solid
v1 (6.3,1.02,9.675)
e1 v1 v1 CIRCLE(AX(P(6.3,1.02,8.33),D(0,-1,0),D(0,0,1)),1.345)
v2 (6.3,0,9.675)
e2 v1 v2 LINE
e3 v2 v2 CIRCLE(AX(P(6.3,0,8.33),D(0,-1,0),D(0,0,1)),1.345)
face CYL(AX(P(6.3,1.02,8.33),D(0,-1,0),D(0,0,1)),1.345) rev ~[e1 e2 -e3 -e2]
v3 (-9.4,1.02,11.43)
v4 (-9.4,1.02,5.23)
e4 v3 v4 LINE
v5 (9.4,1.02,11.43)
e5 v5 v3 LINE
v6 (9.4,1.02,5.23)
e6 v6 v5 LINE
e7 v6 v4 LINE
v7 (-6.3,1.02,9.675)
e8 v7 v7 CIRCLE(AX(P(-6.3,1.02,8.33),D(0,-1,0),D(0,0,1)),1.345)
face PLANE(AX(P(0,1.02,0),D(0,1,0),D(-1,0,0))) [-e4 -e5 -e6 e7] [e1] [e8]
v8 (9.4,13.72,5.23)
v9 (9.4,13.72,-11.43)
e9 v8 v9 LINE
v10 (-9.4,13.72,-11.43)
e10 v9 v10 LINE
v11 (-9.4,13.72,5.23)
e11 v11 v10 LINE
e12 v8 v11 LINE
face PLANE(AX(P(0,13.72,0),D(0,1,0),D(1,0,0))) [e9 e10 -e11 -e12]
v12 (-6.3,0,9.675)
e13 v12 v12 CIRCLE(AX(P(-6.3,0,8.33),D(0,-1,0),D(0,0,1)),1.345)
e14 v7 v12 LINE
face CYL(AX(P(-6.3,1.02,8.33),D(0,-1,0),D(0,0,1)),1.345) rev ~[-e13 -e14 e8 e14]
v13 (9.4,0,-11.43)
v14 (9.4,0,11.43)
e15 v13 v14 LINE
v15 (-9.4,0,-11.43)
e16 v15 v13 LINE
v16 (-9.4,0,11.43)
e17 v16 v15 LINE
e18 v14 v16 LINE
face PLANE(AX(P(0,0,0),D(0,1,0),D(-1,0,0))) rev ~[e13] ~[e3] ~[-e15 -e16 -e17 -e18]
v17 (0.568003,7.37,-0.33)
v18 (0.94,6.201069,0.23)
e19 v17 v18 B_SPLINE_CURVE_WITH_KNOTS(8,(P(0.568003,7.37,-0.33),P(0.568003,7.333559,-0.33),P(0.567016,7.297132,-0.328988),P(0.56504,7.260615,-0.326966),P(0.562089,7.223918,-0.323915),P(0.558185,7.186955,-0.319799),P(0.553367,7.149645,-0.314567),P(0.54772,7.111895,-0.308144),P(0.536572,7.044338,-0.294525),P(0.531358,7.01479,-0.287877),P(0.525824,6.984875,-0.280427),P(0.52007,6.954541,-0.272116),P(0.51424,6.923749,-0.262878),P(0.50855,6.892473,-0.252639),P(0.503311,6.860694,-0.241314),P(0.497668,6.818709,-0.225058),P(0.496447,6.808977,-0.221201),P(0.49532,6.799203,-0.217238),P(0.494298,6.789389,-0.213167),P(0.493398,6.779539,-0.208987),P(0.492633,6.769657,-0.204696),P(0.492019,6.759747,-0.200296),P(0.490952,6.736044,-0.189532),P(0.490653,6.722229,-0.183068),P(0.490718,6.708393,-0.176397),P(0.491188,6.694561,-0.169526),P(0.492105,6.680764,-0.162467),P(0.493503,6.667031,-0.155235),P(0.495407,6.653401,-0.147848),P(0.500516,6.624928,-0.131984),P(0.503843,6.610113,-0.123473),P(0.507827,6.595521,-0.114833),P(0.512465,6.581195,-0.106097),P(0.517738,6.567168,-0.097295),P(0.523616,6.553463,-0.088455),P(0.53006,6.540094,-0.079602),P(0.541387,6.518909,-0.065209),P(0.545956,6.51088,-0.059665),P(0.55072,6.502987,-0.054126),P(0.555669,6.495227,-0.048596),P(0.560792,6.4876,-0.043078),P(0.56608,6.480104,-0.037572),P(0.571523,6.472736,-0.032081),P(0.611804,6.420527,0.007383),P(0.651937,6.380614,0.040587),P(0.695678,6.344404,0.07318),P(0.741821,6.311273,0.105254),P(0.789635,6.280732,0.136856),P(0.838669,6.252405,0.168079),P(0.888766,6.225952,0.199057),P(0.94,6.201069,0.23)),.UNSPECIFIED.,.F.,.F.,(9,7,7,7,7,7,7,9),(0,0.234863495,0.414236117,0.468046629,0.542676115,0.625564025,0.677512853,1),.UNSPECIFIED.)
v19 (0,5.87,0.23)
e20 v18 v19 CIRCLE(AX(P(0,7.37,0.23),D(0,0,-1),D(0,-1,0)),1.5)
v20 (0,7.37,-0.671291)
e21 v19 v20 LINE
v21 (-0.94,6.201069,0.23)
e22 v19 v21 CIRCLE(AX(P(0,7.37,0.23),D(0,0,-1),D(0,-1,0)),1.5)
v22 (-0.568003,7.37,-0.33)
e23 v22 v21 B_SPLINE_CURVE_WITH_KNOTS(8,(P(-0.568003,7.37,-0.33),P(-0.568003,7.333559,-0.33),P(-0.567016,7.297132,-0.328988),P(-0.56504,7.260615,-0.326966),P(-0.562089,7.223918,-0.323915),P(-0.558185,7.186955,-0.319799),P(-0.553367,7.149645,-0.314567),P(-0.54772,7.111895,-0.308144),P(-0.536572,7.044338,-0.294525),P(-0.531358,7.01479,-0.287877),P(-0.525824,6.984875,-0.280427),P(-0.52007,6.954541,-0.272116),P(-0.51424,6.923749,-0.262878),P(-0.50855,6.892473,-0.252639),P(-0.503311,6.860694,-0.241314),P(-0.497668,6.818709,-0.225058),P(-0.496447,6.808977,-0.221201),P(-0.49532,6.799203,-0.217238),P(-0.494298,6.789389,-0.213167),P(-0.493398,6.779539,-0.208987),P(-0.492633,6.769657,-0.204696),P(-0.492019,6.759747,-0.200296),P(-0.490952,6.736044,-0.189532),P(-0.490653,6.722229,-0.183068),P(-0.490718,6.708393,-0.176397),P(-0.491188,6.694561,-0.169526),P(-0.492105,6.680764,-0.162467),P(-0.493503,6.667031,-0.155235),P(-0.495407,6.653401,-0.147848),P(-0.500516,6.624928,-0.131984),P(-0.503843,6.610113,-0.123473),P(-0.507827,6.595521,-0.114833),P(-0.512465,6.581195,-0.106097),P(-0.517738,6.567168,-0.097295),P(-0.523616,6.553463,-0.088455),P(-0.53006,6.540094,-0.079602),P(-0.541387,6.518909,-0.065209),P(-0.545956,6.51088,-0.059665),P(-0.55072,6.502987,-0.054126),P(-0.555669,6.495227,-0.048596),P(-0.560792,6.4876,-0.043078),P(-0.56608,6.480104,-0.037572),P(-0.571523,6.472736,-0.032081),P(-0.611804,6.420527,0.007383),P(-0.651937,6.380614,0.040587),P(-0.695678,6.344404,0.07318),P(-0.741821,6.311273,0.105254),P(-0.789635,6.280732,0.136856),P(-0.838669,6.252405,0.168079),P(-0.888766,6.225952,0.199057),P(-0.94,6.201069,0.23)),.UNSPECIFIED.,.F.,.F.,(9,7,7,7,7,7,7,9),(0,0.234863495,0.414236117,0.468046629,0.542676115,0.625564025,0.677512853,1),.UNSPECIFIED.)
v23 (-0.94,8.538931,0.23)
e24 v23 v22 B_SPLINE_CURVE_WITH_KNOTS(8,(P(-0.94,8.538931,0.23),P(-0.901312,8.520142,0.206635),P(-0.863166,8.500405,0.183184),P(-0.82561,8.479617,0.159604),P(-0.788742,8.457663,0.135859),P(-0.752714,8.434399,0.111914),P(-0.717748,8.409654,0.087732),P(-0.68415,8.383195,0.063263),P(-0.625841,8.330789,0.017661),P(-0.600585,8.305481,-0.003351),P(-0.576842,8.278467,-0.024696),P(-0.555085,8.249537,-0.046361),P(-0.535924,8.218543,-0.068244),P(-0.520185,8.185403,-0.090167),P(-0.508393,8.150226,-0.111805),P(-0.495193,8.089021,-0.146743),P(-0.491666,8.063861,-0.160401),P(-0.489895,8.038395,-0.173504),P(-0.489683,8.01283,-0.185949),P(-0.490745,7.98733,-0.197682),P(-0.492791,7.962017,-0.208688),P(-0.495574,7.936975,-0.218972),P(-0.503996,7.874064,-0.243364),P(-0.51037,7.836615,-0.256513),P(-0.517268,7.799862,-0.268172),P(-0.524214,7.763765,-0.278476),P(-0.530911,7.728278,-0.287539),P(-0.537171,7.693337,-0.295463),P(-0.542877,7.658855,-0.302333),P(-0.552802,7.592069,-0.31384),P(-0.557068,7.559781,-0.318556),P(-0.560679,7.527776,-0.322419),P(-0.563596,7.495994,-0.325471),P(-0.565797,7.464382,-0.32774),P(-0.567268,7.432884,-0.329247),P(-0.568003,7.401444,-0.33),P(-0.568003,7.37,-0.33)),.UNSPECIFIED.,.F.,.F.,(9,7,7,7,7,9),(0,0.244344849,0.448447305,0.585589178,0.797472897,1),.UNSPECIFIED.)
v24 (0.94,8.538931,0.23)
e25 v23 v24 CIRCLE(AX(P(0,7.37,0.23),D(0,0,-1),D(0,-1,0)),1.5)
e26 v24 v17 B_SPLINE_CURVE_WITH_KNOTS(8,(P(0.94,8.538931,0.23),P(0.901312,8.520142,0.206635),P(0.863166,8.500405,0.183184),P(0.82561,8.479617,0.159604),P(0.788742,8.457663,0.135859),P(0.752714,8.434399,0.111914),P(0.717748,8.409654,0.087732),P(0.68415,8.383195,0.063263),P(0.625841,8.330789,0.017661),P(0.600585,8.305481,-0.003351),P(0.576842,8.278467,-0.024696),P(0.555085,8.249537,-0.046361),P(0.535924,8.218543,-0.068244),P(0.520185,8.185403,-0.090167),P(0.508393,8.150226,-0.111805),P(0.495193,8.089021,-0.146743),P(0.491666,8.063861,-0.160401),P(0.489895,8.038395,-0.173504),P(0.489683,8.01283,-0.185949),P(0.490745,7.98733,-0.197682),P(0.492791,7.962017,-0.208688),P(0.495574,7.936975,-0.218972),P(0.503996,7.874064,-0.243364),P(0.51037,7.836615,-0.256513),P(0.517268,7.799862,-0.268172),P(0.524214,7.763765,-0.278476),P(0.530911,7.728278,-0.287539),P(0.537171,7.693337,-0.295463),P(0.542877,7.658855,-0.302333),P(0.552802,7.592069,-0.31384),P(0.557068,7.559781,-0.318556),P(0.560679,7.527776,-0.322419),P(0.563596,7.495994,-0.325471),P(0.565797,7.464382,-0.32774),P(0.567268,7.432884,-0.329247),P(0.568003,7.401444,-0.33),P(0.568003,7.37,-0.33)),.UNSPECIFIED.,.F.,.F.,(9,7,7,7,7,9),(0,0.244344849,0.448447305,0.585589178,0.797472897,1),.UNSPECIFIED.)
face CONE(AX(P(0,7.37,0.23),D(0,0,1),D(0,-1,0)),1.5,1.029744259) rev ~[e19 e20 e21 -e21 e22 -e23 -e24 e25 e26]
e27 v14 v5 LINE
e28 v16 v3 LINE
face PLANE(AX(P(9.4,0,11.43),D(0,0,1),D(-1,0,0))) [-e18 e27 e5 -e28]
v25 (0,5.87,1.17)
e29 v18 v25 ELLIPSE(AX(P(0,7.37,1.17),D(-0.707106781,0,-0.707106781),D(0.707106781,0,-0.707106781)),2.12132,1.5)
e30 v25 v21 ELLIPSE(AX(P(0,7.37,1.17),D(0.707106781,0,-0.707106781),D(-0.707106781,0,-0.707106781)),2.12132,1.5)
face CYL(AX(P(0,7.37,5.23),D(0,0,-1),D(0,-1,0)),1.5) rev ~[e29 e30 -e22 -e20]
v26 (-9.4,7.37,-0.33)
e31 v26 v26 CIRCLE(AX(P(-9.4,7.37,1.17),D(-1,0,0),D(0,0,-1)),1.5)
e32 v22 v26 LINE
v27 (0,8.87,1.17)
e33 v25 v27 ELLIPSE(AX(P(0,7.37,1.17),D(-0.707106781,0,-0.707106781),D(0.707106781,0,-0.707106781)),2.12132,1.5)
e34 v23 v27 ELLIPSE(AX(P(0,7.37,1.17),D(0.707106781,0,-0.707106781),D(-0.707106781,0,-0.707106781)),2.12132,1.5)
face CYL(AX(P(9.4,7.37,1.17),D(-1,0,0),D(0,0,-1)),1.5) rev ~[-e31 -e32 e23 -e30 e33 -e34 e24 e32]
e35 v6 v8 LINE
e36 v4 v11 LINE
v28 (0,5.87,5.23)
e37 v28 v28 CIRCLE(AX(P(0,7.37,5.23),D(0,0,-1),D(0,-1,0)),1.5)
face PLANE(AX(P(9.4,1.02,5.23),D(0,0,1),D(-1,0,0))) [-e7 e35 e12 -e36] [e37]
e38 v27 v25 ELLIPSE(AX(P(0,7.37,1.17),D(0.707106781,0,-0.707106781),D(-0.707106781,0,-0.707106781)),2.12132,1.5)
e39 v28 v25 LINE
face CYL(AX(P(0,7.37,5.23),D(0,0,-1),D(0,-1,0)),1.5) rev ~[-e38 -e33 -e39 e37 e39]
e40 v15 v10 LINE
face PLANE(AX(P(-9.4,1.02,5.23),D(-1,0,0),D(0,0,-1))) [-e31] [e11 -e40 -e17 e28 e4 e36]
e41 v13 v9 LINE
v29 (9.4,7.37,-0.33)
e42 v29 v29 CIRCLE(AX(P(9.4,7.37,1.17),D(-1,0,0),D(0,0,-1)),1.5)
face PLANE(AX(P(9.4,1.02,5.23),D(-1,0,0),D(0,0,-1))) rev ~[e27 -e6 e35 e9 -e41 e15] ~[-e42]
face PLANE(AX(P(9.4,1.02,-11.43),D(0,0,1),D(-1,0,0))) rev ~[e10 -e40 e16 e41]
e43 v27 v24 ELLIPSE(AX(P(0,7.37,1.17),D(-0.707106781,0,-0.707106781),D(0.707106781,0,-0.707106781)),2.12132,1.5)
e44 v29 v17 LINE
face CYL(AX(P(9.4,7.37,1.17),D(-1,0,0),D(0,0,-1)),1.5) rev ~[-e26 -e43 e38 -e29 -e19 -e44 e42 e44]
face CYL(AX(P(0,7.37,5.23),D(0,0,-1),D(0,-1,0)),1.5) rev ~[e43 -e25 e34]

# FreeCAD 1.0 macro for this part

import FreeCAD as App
import Part
import Sketcher
from FreeCAD import Vector

doc = App.newDocument("Part")
params = doc.addObject("Spreadsheet::Sheet", "Params")
for row, (alias, value) in enumerate([
    ("sketch1_width", "18.8 mm"),
    ("sketch1_height", "22.86 mm"),
    ("pad1_length", "1.02 mm"),
    ("sketch2_diameter", "2.69 mm"),
    ("hole_diameter", "2.69 mm"),
    ("sketch3_width", "18.8 mm"),
    ("sketch3_height", "16.66 mm"),
    ("pad2_length", "12.7 mm"),
    ("sketch4_diameter", "3 mm"),
    ("hole2_diameter", "3 mm"),
    ("hole2_depth", "5 mm"),
    ("sketch5_diameter", "3 mm"),
    ("hole3_diameter", "3 mm"),
], start=1):
    params.set(f"A{row}", alias)
    params.set(f"B{row}", "=" + value)
    params.setAlias(f"B{row}", alias)

body = doc.addObject("PartDesign::Body", "Body")

sketch1 = doc.addObject("Sketcher::SketchObject", "Sketch")
body.addObject(sketch1)
sketch1.AttachmentSupport = (doc.XZ_Plane, [""])
sketch1.MapMode = "FlatFace"
sketch1.addGeometry([
    Part.LineSegment(Vector(9, -11, 0), Vector(-9, -11, 0)),
    Part.LineSegment(Vector(-9, -11, 0), Vector(-9, 11, 0)),
    Part.LineSegment(Vector(-9, 11, 0), Vector(9, 11, 0)),
    Part.LineSegment(Vector(9, 11, 0), Vector(9, -11, 0)),
], False)
sketch1.addConstraint([
    Sketcher.Constraint("Coincident", 0, 2, 1, 1),
    Sketcher.Constraint("Coincident", 1, 2, 2, 1),
    Sketcher.Constraint("Coincident", 2, 2, 3, 1),
    Sketcher.Constraint("Coincident", 3, 2, 0, 1),
    Sketcher.Constraint("Horizontal", 0),
    Sketcher.Constraint("Vertical", 1),
    Sketcher.Constraint("Horizontal", 2),
    Sketcher.Constraint("Vertical", 3),
    Sketcher.Constraint("Symmetric", 0, 2, 2, 2, -1, 1),
    Sketcher.Constraint("DistanceX", 0, 2, 0, 1, 18.8),
    Sketcher.Constraint("DistanceY", 1, 1, 1, 2, 22.86),
])
sketch1.setExpression("Constraints[9]", "Params.sketch1_width")
sketch1.setExpression("Constraints[10]", "Params.sketch1_height")
pad1 = doc.addObject("PartDesign::Pad", "Pad")
body.addObject(pad1)
pad1.Profile = sketch1
pad1.setExpression("Length", "Params.pad1_length")
pad1.Reversed = True

sketch2 = doc.addObject("Sketcher::SketchObject", "Sketch001")
body.addObject(sketch2)
sketch2.AttachmentSupport = (doc.XZ_Plane, [""])
sketch2.MapMode = "FlatFace"
sketch2.AttachmentOffset = App.Placement(Vector(0, 0, -1.02), App.Rotation())
sketch2.addGeometry([
    Part.Circle(Vector(-6.3, 8.3, 0), Vector(0, 0, 1), 1.3),
    Part.Circle(Vector(6.3, 8.3, 0), Vector(0, 0, 1), 1.3),
], False)
sketch2.addConstraint([
    Sketcher.Constraint("Equal", 0, 1),
    Sketcher.Constraint("Symmetric", 0, 3, 1, 3, -2),
    Sketcher.Constraint("Diameter", 0, 2.69),
    Sketcher.Constraint("DistanceX", 0, 3, -1, 1, 6.3),
    Sketcher.Constraint("DistanceY", -1, 1, 0, 3, 8.33),
])
sketch2.setExpression("Constraints[2]", "Params.sketch2_diameter")
doc.recompute()
hole = doc.addObject("PartDesign::Hole", "Hole")
body.addObject(hole)
hole.Profile = sketch2
hole.ThreadType = "None"
hole.setExpression("Diameter", "Params.hole_diameter")
hole.DepthType = "ThroughAll"
hole.Reversed = True

sketch3 = doc.addObject("Sketcher::SketchObject", "Sketch002")
body.addObject(sketch3)
sketch3.AttachmentSupport = (doc.XZ_Plane, [""])
sketch3.MapMode = "FlatFace"
sketch3.AttachmentOffset = App.Placement(Vector(0, 0, -1.02), App.Rotation())
sketch3.addGeometry([
    Part.LineSegment(Vector(9, 5, 0), Vector(9, -11, 0)),
    Part.LineSegment(Vector(9, -11, 0), Vector(-9, -11, 0)),
    Part.LineSegment(Vector(-9, -11, 0), Vector(-9, 5, 0)),
    Part.LineSegment(Vector(-9, 5, 0), Vector(9, 5, 0)),
], False)
sketch3.addConstraint([
    Sketcher.Constraint("Coincident", 0, 2, 1, 1),
    Sketcher.Constraint("Coincident", 1, 2, 2, 1),
    Sketcher.Constraint("Coincident", 2, 2, 3, 1),
    Sketcher.Constraint("Coincident", 3, 2, 0, 1),
    Sketcher.Constraint("Vertical", 0),
    Sketcher.Constraint("Horizontal", 1),
    Sketcher.Constraint("Vertical", 2),
    Sketcher.Constraint("Horizontal", 3),
    Sketcher.Constraint("DistanceX", 1, 2, 1, 1, 18.8),
    Sketcher.Constraint("DistanceY", 0, 2, 0, 1, 16.66),
    Sketcher.Constraint("DistanceX", -1, 1, 0, 2, 9.4),
    Sketcher.Constraint("DistanceY", 0, 2, -1, 1, 11.43),
])
sketch3.setExpression("Constraints[8]", "Params.sketch3_width")
sketch3.setExpression("Constraints[9]", "Params.sketch3_height")
pad2 = doc.addObject("PartDesign::Pad", "Pad001")
body.addObject(pad2)
pad2.Profile = sketch3
pad2.setExpression("Length", "Params.pad2_length")
pad2.Reversed = True

sketch4 = doc.addObject("Sketcher::SketchObject", "Sketch003")
body.addObject(sketch4)
sketch4.AttachmentSupport = (doc.XY_Plane, [""])
sketch4.MapMode = "FlatFace"
sketch4.AttachmentOffset = App.Placement(Vector(0, 0, 5.23), App.Rotation())
sketch4.addGeometry(Part.Circle(Vector(0, 7.4, 0), Vector(0, 0, 1), 1.5), False)
sketch4.addConstraint([
    Sketcher.Constraint("PointOnObject", 0, 3, -2),
    Sketcher.Constraint("Diameter", 0, 3.0),
    Sketcher.Constraint("DistanceY", -1, 1, 0, 3, 7.37),
])
sketch4.setExpression("Constraints[1]", "Params.sketch4_diameter")
doc.recompute()
hole2 = doc.addObject("PartDesign::Hole", "Hole001")
body.addObject(hole2)
hole2.Profile = sketch4
hole2.ThreadType = "None"
hole2.setExpression("Diameter", "Params.hole2_diameter")
hole2.DepthType = "Dimension"
hole2.setExpression("Depth", "Params.hole2_depth")
hole2.DrillPoint = "Angled"
hole2.DrillPointAngle = 118

sketch5 = doc.addObject("Sketcher::SketchObject", "Sketch004")
body.addObject(sketch5)
sketch5.AttachmentSupport = (doc.YZ_Plane, [""])
sketch5.MapMode = "FlatFace"
sketch5.AttachmentOffset = App.Placement(Vector(0, 0, 9.4), App.Rotation())
sketch5.addGeometry(Part.Circle(Vector(7.4, 1.2, 0), Vector(0, 0, 1), 1.5), False)
sketch5.addConstraint([
    Sketcher.Constraint("Diameter", 0, 3.0),
    Sketcher.Constraint("DistanceX", -1, 1, 0, 3, 7.37),
    Sketcher.Constraint("DistanceY", -1, 1, 0, 3, 1.17),
])
sketch5.setExpression("Constraints[0]", "Params.sketch5_diameter")
doc.recompute()
hole3 = doc.addObject("PartDesign::Hole", "Hole002")
body.addObject(hole3)
hole3.Profile = sketch5
hole3.ThreadType = "None"
hole3.setExpression("Diameter", "Params.hole3_diameter")
hole3.DepthType = "ThroughAll"

doc.recompute()
